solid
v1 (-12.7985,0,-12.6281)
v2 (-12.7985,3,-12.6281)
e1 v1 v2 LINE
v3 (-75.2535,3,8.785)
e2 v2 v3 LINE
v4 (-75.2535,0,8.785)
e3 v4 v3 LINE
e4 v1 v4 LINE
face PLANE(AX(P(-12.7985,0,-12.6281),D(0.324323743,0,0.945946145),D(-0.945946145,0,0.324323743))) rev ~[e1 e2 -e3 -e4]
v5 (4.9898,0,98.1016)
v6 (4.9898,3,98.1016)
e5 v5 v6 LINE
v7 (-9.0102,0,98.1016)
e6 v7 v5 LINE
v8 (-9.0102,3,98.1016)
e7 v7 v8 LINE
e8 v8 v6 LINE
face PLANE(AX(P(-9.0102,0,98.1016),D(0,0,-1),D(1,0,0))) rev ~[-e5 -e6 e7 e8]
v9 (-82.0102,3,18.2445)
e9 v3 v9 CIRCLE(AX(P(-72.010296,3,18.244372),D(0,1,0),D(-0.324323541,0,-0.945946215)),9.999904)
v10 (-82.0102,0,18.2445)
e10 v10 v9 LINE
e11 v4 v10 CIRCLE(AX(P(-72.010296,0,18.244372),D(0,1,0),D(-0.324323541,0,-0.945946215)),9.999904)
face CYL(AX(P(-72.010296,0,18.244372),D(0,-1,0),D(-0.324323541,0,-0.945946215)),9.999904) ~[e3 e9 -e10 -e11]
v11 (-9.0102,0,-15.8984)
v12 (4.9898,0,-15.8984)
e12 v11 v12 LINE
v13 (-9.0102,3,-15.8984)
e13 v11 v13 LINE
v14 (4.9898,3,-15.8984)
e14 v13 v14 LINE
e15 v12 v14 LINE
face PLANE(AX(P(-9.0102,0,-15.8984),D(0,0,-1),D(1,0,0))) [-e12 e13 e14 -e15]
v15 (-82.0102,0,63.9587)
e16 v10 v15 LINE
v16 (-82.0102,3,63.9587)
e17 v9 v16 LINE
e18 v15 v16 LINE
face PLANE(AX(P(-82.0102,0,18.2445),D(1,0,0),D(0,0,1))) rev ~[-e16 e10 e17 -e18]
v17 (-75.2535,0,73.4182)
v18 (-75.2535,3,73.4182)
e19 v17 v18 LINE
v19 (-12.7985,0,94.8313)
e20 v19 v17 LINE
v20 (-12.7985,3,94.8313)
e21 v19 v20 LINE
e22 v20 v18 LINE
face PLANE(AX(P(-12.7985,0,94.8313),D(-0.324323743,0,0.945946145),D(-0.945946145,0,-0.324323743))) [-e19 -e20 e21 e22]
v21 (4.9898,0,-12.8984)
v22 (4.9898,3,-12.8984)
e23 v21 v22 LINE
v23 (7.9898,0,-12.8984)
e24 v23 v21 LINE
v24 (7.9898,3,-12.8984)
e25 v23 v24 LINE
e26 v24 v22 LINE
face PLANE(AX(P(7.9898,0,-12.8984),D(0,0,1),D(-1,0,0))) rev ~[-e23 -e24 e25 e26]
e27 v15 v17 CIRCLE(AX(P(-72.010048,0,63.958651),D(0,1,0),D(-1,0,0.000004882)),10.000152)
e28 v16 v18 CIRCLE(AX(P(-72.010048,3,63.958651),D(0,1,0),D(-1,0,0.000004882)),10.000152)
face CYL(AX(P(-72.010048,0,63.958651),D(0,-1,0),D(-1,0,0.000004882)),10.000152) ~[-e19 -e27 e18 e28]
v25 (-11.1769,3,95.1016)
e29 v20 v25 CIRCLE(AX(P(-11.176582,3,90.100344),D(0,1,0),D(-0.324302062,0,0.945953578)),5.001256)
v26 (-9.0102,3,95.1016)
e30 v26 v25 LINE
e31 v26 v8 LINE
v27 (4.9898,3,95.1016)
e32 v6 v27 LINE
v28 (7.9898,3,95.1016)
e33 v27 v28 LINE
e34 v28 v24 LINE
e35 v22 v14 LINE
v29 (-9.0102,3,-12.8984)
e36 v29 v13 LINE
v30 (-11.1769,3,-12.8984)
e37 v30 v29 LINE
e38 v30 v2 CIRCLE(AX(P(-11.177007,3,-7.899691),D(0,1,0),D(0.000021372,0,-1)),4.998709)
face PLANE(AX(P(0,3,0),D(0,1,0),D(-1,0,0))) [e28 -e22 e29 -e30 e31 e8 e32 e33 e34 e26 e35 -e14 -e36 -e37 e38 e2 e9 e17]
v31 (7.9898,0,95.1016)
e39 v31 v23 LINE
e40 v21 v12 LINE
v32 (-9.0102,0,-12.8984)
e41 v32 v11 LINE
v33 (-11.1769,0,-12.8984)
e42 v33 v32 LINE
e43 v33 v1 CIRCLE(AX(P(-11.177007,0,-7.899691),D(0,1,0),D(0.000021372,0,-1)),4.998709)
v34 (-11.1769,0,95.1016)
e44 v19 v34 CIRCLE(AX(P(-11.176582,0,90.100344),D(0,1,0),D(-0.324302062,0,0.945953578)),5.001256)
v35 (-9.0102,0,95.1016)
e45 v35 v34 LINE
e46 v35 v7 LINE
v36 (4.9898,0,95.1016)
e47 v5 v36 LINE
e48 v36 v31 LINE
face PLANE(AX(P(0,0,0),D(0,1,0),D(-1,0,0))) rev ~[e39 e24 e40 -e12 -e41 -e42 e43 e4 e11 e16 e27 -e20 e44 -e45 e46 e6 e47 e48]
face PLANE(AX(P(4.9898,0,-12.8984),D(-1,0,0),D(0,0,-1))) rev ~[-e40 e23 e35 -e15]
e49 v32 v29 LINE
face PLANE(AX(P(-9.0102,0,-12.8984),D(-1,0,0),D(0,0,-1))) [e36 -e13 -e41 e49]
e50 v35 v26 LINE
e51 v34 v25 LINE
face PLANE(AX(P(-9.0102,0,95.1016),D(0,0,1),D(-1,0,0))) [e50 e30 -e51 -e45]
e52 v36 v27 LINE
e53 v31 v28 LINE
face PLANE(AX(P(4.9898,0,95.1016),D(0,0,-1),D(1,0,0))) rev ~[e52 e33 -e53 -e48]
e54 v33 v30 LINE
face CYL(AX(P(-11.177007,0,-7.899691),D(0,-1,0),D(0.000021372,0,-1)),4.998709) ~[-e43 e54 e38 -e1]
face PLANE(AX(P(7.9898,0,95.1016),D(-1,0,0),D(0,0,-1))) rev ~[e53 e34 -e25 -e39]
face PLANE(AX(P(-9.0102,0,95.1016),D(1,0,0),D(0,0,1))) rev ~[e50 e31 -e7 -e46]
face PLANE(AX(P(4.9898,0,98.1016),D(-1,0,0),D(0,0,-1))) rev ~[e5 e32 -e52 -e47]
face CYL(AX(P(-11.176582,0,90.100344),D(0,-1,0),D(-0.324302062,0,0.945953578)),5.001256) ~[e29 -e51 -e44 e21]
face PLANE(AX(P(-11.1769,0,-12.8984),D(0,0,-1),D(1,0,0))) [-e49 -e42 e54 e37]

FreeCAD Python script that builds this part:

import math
import FreeCAD as App
import Part
import Sketcher
from FreeCAD import Vector
Q = App.Units.Quantity

doc = App.newDocument("Part")
body = doc.addObject("PartDesign::Body", "Body")

sketch1 = doc.addObject("Sketcher::SketchObject", "Sketch")
body.addObject(sketch1)
sketch1.AttachmentSupport = (doc.XZ_Plane, [""])
sketch1.MapMode = "FlatFace"
sketch1.addGeometry(Part.LineSegment(Vector(-9, -15.9, 0), Vector(-9, -12.9, 0)), False)
sketch1.addGeometry(Part.LineSegment(Vector(-9, -12.9, 0), Vector(-11.2, -12.9, 0)), False)
sketch1.addGeometry(Part.ArcOfCircle(Part.Circle(Vector(-11.2, -7.9, 0), Vector(0, 0, 1), 5), math.radians(-108.93), math.radians(-90)), False)
sketch1.addGeometry(Part.LineSegment(Vector(-12.8, -12.6, 0), Vector(-75.3, 8.8, 0)), False)
sketch1.addGeometry(Part.ArcOfCircle(Part.Circle(Vector(-72, 18.2, 0), Vector(0, 0, 1), 10), math.radians(180), math.radians(251)), False)
sketch1.addGeometry(Part.LineSegment(Vector(-82, 18.2, 0), Vector(-82, 64, 0)), False)
sketch1.addGeometry(Part.ArcOfCircle(Part.Circle(Vector(-72, 64, 0), Vector(0, 0, 1), 10), math.radians(109), math.radians(180)), False)
sketch1.addGeometry(Part.LineSegment(Vector(-75.3, 73.4, 0), Vector(-12.8, 94.8, 0)), False)
sketch1.addGeometry(Part.ArcOfCircle(Part.Circle(Vector(-11.2, 90.1, 0), Vector(0, 0, 1), 5), math.radians(90), math.radians(108.92)), False)
sketch1.addGeometry(Part.LineSegment(Vector(-11.2, 95.1, 0), Vector(-9, 95.1, 0)), False)
sketch1.addGeometry(Part.LineSegment(Vector(-9, 95.1, 0), Vector(-9, 98.1, 0)), False)
sketch1.addGeometry(Part.LineSegment(Vector(-9, 98.1, 0), Vector(5, 98.1, 0)), False)
sketch1.addGeometry(Part.LineSegment(Vector(5, 98.1, 0), Vector(5, 95.1, 0)), False)
sketch1.addGeometry(Part.LineSegment(Vector(5, 95.1, 0), Vector(8, 95.1, 0)), False)
sketch1.addGeometry(Part.LineSegment(Vector(8, 95.1, 0), Vector(8, -12.9, 0)), False)
sketch1.addGeometry(Part.LineSegment(Vector(8, -12.9, 0), Vector(5, -12.9, 0)), False)
sketch1.addGeometry(Part.LineSegment(Vector(5, -12.9, 0), Vector(5, -15.9, 0)), False)
sketch1.addGeometry(Part.LineSegment(Vector(5, -15.9, 0), Vector(-9, -15.9, 0)), False)
sketch1.addConstraint(Sketcher.Constraint("Coincident", 0, 2, 1, 1))
sketch1.addConstraint(Sketcher.Constraint("Tangent", 1, 2, 2, 2))
sketch1.addConstraint(Sketcher.Constraint("Tangent", 2, 1, 3, 1))
sketch1.addConstraint(Sketcher.Constraint("Tangent", 3, 2, 4, 2))
sketch1.addConstraint(Sketcher.Constraint("Tangent", 4, 1, 5, 1))
sketch1.addConstraint(Sketcher.Constraint("Tangent", 5, 2, 6, 2))
sketch1.addConstraint(Sketcher.Constraint("Tangent", 6, 1, 7, 1))
sketch1.addConstraint(Sketcher.Constraint("Tangent", 7, 2, 8, 2))
sketch1.addConstraint(Sketcher.Constraint("Tangent", 8, 1, 9, 1))
sketch1.addConstraint(Sketcher.Constraint("Coincident", 9, 2, 10, 1))
sketch1.addConstraint(Sketcher.Constraint("Coincident", 10, 2, 11, 1))
sketch1.addConstraint(Sketcher.Constraint("Coincident", 11, 2, 12, 1))
sketch1.addConstraint(Sketcher.Constraint("Coincident", 12, 2, 13, 1))
sketch1.addConstraint(Sketcher.Constraint("Coincident", 13, 2, 14, 1))
sketch1.addConstraint(Sketcher.Constraint("Coincident", 14, 2, 15, 1))
sketch1.addConstraint(Sketcher.Constraint("Coincident", 15, 2, 16, 1))
sketch1.addConstraint(Sketcher.Constraint("Coincident", 16, 2, 17, 1))
sketch1.addConstraint(Sketcher.Constraint("Coincident", 17, 2, 0, 1))
sketch1.addConstraint(Sketcher.Constraint("Vertical", 0))
sketch1.addConstraint(Sketcher.Constraint("Horizontal", 1))
sketch1.addConstraint(Sketcher.Constraint("Vertical", 5))
sketch1.addConstraint(Sketcher.Constraint("Horizontal", 9))
sketch1.addConstraint(Sketcher.Constraint("Vertical", 10))
sketch1.addConstraint(Sketcher.Constraint("Horizontal", 11))
sketch1.addConstraint(Sketcher.Constraint("Vertical", 12))
sketch1.addConstraint(Sketcher.Constraint("Horizontal", 13))
sketch1.addConstraint(Sketcher.Constraint("Vertical", 14))
sketch1.addConstraint(Sketcher.Constraint("Horizontal", 15))
sketch1.addConstraint(Sketcher.Constraint("Vertical", 16))
sketch1.addConstraint(Sketcher.Constraint("Horizontal", 17))
sketch1.addConstraint(Sketcher.Constraint("Equal", 4, 6))
sketch1.addConstraint(Sketcher.Constraint("Horizontal", 9, 2, 12, 2))
sketch1.addConstraint(Sketcher.Constraint("Horizontal", 1, 2, 14, 2))
sketch1.addConstraint(Sketcher.Constraint("Vertical", 3, 2, 6, 1))
sketch1.addConstraint(Sketcher.Constraint("Vertical", 2, 1, 7, 2))
sketch1.addConstraint(Sketcher.Constraint("Vertical", 1, 2, 8, 1))
sketch1.addConstraint(Sketcher.Constraint("Vertical", 0, 2, 9, 2))
sketch1.addConstraint(Sketcher.Constraint("Vertical", 12, 2, 15, 2))
sketch1.addConstraint(Sketcher.Constraint("Equal", 15, 0))
sketch1.addConstraint(Sketcher.Constraint("Equal", 0, 10))
sketch1.addConstraint(Sketcher.Constraint("Radius", 4, Q("10 mm")))
sketch1.addConstraint(Sketcher.Constraint("DistanceX", 11, 1, 11, 2, Q("14 mm")))
sketch1.addConstraint(Sketcher.Constraint("DistanceX", 13, 1, 13, 2, Q("3 mm")))
sketch1.addConstraint(Sketcher.Constraint("DistanceY", 14, 2, 14, 1, Q("108 mm")))
sketch1.addConstraint(Sketcher.Constraint("DistanceY", 2, 3, 8, 3, Q("98 mm")))
sketch1.addConstraint(Sketcher.Constraint("DistanceX", 4, 3, 0, 2, Q("63 mm")))
sketch1.addConstraint(Sketcher.Constraint("DistanceX", 1, 2, 1, 1, Q("2.1667 mm")))
sketch1.addConstraint(Sketcher.Constraint("DistanceY", 5, 1, 5, 2, Q("45.7142 mm")))
sketch1.addConstraint(Sketcher.Constraint("DistanceX", 2, 3, -1, 1, Q("11.177 mm")))
sketch1.addConstraint(Sketcher.Constraint("DistanceY", 2, 1, -1, 1, Q("12.628 mm")))
pad1 = doc.addObject("PartDesign::Pad", "Pad")
body.addObject(pad1)
pad1.Profile = sketch1
pad1.Length = 3
pad1.Reversed = True

doc.recompute()
